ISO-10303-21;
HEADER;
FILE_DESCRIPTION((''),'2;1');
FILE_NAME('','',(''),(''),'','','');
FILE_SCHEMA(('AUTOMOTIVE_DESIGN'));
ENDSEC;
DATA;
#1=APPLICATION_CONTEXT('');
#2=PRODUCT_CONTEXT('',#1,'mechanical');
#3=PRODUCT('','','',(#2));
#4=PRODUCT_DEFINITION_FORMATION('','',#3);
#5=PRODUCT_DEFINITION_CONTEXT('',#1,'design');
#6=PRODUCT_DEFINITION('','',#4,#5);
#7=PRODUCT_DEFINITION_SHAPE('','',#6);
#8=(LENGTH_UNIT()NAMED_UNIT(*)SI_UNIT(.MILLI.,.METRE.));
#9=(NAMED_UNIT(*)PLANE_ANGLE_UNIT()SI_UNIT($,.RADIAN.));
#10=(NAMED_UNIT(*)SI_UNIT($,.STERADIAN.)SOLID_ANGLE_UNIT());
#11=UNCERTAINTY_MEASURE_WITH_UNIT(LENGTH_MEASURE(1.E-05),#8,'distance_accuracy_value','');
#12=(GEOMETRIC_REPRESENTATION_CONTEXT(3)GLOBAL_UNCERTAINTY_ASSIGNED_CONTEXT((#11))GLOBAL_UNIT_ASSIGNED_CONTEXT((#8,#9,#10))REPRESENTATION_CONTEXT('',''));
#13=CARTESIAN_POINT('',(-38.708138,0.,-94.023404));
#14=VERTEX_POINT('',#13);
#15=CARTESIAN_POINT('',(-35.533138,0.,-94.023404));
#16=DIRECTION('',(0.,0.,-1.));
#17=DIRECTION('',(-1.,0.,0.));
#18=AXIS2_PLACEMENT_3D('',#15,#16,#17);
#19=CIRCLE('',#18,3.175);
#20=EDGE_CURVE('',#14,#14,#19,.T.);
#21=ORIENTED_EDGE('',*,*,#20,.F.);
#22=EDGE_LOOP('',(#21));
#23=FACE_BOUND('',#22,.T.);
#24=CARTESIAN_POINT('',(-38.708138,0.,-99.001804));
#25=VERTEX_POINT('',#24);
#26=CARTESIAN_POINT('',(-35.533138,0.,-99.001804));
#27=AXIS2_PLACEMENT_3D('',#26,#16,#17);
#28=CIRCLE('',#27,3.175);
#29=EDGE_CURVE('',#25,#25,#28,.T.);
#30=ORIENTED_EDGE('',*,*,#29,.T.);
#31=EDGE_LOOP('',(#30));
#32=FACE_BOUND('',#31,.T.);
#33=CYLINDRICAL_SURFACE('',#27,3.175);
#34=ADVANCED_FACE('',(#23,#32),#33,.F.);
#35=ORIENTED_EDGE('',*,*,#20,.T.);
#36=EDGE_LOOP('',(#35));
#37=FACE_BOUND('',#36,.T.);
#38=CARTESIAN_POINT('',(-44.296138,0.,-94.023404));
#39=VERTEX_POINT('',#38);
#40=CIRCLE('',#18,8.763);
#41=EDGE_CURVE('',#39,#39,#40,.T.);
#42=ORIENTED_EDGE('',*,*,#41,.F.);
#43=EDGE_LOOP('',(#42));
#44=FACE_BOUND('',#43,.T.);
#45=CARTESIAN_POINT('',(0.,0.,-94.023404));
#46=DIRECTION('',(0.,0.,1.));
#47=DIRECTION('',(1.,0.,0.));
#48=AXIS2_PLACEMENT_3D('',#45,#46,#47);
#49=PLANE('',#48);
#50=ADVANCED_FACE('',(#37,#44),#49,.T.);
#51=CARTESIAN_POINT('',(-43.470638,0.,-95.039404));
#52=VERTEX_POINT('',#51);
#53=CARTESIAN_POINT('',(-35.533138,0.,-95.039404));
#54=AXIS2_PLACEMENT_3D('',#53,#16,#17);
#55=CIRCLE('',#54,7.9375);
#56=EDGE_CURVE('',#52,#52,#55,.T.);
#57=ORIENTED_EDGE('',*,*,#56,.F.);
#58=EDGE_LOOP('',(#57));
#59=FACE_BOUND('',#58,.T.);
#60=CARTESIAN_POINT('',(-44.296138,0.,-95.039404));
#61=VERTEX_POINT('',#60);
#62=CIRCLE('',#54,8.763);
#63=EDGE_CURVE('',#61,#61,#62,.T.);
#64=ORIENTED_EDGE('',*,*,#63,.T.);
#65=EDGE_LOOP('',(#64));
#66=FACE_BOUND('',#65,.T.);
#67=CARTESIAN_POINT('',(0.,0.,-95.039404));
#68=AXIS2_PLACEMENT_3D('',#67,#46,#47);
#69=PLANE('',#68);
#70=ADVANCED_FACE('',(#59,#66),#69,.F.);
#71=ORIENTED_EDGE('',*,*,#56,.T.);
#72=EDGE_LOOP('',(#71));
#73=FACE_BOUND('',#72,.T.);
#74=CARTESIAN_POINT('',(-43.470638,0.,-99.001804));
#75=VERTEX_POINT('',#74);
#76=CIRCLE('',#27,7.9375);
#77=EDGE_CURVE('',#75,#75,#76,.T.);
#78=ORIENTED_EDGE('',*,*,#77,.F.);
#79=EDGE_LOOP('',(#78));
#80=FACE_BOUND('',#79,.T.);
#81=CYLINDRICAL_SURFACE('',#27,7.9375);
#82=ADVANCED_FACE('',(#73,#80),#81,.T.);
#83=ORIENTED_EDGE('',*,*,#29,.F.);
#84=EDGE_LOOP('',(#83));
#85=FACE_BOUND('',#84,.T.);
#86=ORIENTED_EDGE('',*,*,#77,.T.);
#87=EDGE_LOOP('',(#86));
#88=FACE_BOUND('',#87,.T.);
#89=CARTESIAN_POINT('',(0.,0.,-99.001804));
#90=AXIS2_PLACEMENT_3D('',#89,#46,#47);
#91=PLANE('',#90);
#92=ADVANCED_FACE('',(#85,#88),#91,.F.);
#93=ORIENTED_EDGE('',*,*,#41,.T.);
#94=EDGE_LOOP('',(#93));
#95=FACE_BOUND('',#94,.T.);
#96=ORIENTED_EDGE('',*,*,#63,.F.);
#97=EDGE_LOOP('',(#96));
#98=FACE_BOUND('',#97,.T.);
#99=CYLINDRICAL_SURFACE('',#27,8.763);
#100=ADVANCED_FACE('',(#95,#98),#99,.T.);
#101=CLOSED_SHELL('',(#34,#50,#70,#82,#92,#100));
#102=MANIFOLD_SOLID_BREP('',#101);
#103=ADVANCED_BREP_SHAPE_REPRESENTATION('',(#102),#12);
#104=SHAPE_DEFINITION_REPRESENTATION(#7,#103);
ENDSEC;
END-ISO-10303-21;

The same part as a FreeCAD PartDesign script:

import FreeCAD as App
import Part
import Sketcher
from FreeCAD import Vector
Q = App.Units.Quantity

doc = App.newDocument("Part")
body = doc.addObject("PartDesign::Body", "Body")

sketch1 = body.newObject("Sketcher::SketchObject", "Sketch")
sketch1.AttachmentSupport = (doc.getObject("XZ_Plane"), [""])
sketch1.MapMode = "FlatFace"
sketch1.addGeometry([
    Part.LineSegment(Vector(-38.708138, -94.023404, 0), Vector(-38.708138, -99.001804, 0)),
    Part.LineSegment(Vector(-38.708138, -99.001804, 0), Vector(-43.470638, -99.001804, 0)),
    Part.LineSegment(Vector(-43.470638, -99.001804, 0), Vector(-43.470638, -95.039404, 0)),
    Part.LineSegment(Vector(-43.470638, -95.039404, 0), Vector(-44.296138, -95.039404, 0)),
    Part.LineSegment(Vector(-44.296138, -95.039404, 0), Vector(-44.296138, -94.023404, 0)),
    Part.LineSegment(Vector(-44.296138, -94.023404, 0), Vector(-38.708138, -94.023404, 0)),
], False)
sketch1.addGeometry(Part.LineSegment(Vector(-35.533138, -99.001804, 0), Vector(-35.533138, -94.023404, 0)), True)
sketch1.addConstraint([
    Sketcher.Constraint("Coincident", 0, 2, 1, 1),
    Sketcher.Constraint("Coincident", 1, 2, 2, 1),
    Sketcher.Constraint("Coincident", 2, 2, 3, 1),
    Sketcher.Constraint("Coincident", 3, 2, 4, 1),
    Sketcher.Constraint("Coincident", 4, 2, 5, 1),
    Sketcher.Constraint("Coincident", 5, 2, 0, 1),
    Sketcher.Constraint("Vertical", 0),
    Sketcher.Constraint("Horizontal", 1),
    Sketcher.Constraint("Vertical", 2),
    Sketcher.Constraint("Horizontal", 3),
    Sketcher.Constraint("Vertical", 4),
    Sketcher.Constraint("Horizontal", 5),
    Sketcher.Constraint("Vertical", 6),
    Sketcher.Constraint("Horizontal", 1, 2, 6, 1),
    Sketcher.Constraint("Horizontal", 5, 2, 6, 2),
    Sketcher.Constraint("DistanceX", 5, 1, 5, 2, Q("0.22 in")),
    Sketcher.Constraint("DistanceY", 4, 1, 4, 2, Q("0.04 in")),
    Sketcher.Constraint("DistanceX", 1, 2, 1, 1, Q("0.1875 in")),
    Sketcher.Constraint("DistanceY", 0, 2, 0, 1, Q("0.196 in")),
    Sketcher.Constraint("DistanceX", 0, 2, 6, 1, Q("0.125 in")),
    Sketcher.Constraint("DistanceX", 0, 2, -1, 1, Q("38.708138 mm")),
    Sketcher.Constraint("DistanceY", 0, 2, -1, 1, Q("99.001804 mm")),
])
revolution = body.newObject("PartDesign::Revolution", "Revolution")
revolution.Profile = sketch1
revolution.ReferenceAxis = (sketch1, ["Axis0"])
revolution.Angle = 360

doc.recompute()
